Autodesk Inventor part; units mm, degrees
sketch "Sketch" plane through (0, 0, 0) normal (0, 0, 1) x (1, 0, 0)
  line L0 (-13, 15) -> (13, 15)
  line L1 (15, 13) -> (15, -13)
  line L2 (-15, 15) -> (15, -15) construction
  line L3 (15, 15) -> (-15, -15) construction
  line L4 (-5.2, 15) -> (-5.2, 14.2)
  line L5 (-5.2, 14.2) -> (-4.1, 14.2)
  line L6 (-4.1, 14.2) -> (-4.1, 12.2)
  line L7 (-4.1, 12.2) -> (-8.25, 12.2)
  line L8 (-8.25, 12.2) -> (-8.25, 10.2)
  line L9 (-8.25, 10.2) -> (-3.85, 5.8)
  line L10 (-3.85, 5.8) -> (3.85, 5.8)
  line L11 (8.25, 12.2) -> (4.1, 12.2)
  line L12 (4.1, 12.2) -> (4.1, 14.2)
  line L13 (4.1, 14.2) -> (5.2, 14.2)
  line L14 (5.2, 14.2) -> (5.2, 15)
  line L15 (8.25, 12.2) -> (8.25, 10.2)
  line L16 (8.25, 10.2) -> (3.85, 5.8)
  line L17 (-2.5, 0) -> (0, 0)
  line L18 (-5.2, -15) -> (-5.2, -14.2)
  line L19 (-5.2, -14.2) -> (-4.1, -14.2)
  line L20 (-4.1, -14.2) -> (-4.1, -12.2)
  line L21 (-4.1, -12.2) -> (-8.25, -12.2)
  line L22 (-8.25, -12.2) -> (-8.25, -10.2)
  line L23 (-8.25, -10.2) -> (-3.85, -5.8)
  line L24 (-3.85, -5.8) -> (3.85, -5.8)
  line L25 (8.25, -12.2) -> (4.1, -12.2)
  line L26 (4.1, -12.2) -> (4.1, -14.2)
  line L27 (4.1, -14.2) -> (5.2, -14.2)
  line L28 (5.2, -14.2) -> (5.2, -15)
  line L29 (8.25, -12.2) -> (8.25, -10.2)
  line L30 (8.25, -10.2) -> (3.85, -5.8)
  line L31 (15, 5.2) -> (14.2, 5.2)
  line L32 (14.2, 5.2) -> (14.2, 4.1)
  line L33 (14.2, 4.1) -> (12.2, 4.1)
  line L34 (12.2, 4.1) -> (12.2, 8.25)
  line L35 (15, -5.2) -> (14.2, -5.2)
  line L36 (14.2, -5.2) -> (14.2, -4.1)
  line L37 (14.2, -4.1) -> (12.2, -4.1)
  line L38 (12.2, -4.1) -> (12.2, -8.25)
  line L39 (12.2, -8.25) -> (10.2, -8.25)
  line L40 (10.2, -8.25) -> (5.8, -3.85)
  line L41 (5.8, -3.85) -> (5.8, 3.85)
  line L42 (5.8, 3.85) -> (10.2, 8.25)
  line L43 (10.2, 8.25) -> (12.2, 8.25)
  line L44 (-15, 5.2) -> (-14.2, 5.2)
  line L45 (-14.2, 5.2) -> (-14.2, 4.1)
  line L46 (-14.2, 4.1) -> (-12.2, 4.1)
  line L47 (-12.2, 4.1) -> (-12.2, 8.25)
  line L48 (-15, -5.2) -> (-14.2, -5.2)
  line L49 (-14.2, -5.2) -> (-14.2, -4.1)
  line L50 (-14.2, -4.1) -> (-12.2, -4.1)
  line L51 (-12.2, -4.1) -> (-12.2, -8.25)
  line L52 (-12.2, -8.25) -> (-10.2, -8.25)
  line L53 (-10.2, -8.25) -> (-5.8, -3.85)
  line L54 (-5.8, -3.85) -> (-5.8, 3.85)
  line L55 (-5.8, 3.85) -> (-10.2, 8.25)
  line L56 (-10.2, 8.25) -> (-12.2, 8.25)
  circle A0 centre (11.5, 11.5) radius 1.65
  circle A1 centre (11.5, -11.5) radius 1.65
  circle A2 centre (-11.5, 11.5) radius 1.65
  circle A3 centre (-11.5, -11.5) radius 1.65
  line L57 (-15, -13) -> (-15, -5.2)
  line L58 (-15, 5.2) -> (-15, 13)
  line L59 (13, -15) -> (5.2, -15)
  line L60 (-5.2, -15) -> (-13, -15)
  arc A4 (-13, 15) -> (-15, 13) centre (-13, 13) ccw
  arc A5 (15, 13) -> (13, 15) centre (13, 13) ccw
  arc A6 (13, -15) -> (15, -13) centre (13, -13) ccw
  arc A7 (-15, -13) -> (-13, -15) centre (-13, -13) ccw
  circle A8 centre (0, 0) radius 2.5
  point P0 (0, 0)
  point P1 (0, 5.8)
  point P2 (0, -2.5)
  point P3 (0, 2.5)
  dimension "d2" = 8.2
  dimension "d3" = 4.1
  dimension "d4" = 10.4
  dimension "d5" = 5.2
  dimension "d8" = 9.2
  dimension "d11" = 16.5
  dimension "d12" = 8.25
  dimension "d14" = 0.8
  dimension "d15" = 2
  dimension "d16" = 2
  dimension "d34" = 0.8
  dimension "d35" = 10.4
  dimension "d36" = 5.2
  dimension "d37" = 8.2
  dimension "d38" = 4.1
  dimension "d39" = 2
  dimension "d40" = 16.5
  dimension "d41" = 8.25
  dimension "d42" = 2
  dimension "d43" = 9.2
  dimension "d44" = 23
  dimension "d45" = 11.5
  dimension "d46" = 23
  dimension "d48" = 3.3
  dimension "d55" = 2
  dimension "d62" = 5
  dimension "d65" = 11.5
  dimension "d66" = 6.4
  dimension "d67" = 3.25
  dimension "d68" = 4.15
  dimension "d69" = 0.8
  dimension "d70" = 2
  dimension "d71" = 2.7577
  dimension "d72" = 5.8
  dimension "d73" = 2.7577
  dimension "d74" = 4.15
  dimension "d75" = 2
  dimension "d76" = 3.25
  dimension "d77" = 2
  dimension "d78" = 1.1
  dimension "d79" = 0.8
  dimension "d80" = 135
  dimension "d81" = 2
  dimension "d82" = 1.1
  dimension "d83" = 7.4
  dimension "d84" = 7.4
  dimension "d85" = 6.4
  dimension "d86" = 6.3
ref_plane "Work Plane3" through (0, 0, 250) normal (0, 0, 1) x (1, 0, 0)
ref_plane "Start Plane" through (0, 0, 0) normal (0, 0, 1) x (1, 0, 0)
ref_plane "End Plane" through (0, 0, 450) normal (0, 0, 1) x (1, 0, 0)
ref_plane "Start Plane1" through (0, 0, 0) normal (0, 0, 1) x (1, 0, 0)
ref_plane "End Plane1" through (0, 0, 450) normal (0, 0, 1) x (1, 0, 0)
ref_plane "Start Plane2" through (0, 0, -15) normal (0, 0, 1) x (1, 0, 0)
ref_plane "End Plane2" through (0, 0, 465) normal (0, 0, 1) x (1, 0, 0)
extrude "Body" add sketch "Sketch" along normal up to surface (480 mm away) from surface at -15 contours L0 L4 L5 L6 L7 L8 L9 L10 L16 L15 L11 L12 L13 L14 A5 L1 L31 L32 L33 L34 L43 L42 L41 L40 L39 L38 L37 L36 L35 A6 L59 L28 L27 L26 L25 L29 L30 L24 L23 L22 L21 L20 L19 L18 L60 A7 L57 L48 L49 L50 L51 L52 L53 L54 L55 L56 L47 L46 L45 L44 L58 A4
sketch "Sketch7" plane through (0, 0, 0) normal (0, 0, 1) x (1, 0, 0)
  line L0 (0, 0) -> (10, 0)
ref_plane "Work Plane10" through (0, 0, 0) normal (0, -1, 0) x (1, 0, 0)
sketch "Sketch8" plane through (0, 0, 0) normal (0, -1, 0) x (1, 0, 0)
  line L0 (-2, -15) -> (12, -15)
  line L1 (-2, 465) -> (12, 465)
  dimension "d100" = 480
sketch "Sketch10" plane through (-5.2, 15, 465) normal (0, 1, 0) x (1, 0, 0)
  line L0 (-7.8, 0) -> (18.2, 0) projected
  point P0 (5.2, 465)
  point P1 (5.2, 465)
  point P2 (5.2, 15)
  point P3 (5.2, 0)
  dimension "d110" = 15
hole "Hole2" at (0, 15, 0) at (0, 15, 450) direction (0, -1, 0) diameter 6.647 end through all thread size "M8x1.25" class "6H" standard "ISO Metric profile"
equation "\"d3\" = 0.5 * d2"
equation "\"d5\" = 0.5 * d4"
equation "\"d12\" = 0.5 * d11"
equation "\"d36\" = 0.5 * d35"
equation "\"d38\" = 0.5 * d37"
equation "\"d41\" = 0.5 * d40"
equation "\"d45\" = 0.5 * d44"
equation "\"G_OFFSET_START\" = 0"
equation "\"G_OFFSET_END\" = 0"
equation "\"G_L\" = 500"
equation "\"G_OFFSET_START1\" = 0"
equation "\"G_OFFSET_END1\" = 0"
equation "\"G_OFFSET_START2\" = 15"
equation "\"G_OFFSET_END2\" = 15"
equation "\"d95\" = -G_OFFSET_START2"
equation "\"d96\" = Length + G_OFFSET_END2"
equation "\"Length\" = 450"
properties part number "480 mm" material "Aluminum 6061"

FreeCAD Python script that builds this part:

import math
import FreeCAD as App
import Part
import Sketcher

V = App.Vector

doc = App.newDocument("Part")
body = doc.addObject("PartDesign::Body", "Body")

sketch1 = body.newObject("Sketcher::SketchObject", "Sketch")
sketch1.AttachmentSupport = (doc.getObject("XY_Plane"), [""])
sketch1.MapMode = "FlatFace"
sketch1.AttachmentOffset = App.Placement(V(0, 0, -15), App.Rotation())
sketch1.addGeometry(Part.LineSegment(V(-5.2, 15, 0), V(-13, 15, 0)), False)
sketch1.addGeometry(Part.ArcOfCircle(Part.Circle(V(-13, 13, 0), V(0, 0, 1), 2), math.radians(90), math.radians(180)), False)
sketch1.addGeometry(Part.LineSegment(V(-15, 13, 0), V(-15, 5.2, 0)), False)
sketch1.addGeometry(Part.LineSegment(V(-15, 5.2, 0), V(-14.2, 5.2, 0)), False)
sketch1.addGeometry(Part.LineSegment(V(-14.2, 5.2, 0), V(-14.2, 4.1, 0)), False)
sketch1.addGeometry(Part.LineSegment(V(-14.2, 4.1, 0), V(-12.2, 4.1, 0)), False)
sketch1.addGeometry(Part.LineSegment(V(-12.2, 4.1, 0), V(-12.2, 8.25, 0)), False)
sketch1.addGeometry(Part.LineSegment(V(-12.2, 8.25, 0), V(-10.2, 8.25, 0)), False)
sketch1.addGeometry(Part.LineSegment(V(-10.2, 8.25, 0), V(-5.8, 3.85, 0)), False)
sketch1.addGeometry(Part.LineSegment(V(-5.8, 3.85, 0), V(-5.8, -3.85, 0)), False)
sketch1.addGeometry(Part.LineSegment(V(-5.8, -3.85, 0), V(-10.2, -8.25, 0)), False)
sketch1.addGeometry(Part.LineSegment(V(-10.2, -8.25, 0), V(-12.2, -8.25, 0)), False)
sketch1.addGeometry(Part.LineSegment(V(-12.2, -8.25, 0), V(-12.2, -4.1, 0)), False)
sketch1.addGeometry(Part.LineSegment(V(-12.2, -4.1, 0), V(-14.2, -4.1, 0)), False)
sketch1.addGeometry(Part.LineSegment(V(-14.2, -4.1, 0), V(-14.2, -5.2, 0)), False)
sketch1.addGeometry(Part.LineSegment(V(-14.2, -5.2, 0), V(-15, -5.2, 0)), False)
sketch1.addGeometry(Part.LineSegment(V(-15, -5.2, 0), V(-15, -13, 0)), False)
sketch1.addGeometry(Part.ArcOfCircle(Part.Circle(V(-13, -13, 0), V(0, 0, 1), 2), math.radians(180), math.radians(270)), False)
sketch1.addGeometry(Part.LineSegment(V(-13, -15, 0), V(-5.2, -15, 0)), False)
sketch1.addGeometry(Part.LineSegment(V(-5.2, -15, 0), V(-5.2, -14.2, 0)), False)
sketch1.addGeometry(Part.LineSegment(V(-5.2, -14.2, 0), V(-4.1, -14.2, 0)), False)
sketch1.addGeometry(Part.LineSegment(V(-4.1, -14.2, 0), V(-4.1, -12.2, 0)), False)
sketch1.addGeometry(Part.LineSegment(V(-4.1, -12.2, 0), V(-8.25, -12.2, 0)), False)
sketch1.addGeometry(Part.LineSegment(V(-8.25, -12.2, 0), V(-8.25, -10.2, 0)), False)
sketch1.addGeometry(Part.LineSegment(V(-8.25, -10.2, 0), V(-3.85, -5.8, 0)), False)
sketch1.addGeometry(Part.LineSegment(V(-3.85, -5.8, 0), V(3.85, -5.8, 0)), False)
sketch1.addGeometry(Part.LineSegment(V(3.85, -5.8, 0), V(8.25, -10.2, 0)), False)
sketch1.addGeometry(Part.LineSegment(V(8.25, -10.2, 0), V(8.25, -12.2, 0)), False)
sketch1.addGeometry(Part.LineSegment(V(8.25, -12.2, 0), V(4.1, -12.2, 0)), False)
sketch1.addGeometry(Part.LineSegment(V(4.1, -12.2, 0), V(4.1, -14.2, 0)), False)
sketch1.addGeometry(Part.LineSegment(V(4.1, -14.2, 0), V(5.2, -14.2, 0)), False)
sketch1.addGeometry(Part.LineSegment(V(5.2, -14.2, 0), V(5.2, -15, 0)), False)
sketch1.addGeometry(Part.LineSegment(V(5.2, -15, 0), V(13, -15, 0)), False)
sketch1.addGeometry(Part.ArcOfCircle(Part.Circle(V(13, -13, 0), V(0, 0, 1), 2), math.radians(-90), math.radians(0)), False)
sketch1.addGeometry(Part.LineSegment(V(15, -13, 0), V(15, -5.2, 0)), False)
sketch1.addGeometry(Part.LineSegment(V(15, -5.2, 0), V(14.2, -5.2, 0)), False)
sketch1.addGeometry(Part.LineSegment(V(14.2, -5.2, 0), V(14.2, -4.1, 0)), False)
sketch1.addGeometry(Part.LineSegment(V(14.2, -4.1, 0), V(12.2, -4.1, 0)), False)
sketch1.addGeometry(Part.LineSegment(V(12.2, -4.1, 0), V(12.2, -8.25, 0)), False)
sketch1.addGeometry(Part.LineSegment(V(12.2, -8.25, 0), V(10.2, -8.25, 0)), False)
sketch1.addGeometry(Part.LineSegment(V(10.2, -8.25, 0), V(5.8, -3.85, 0)), False)
sketch1.addGeometry(Part.LineSegment(V(5.8, -3.85, 0), V(5.8, 3.85, 0)), False)
sketch1.addGeometry(Part.LineSegment(V(5.8, 3.85, 0), V(10.2, 8.25, 0)), False)
sketch1.addGeometry(Part.LineSegment(V(10.2, 8.25, 0), V(12.2, 8.25, 0)), False)
sketch1.addGeometry(Part.LineSegment(V(12.2, 8.25, 0), V(12.2, 4.1, 0)), False)
sketch1.addGeometry(Part.LineSegment(V(12.2, 4.1, 0), V(14.2, 4.1, 0)), False)
sketch1.addGeometry(Part.LineSegment(V(14.2, 4.1, 0), V(14.2, 5.2, 0)), False)
sketch1.addGeometry(Part.LineSegment(V(14.2, 5.2, 0), V(15, 5.2, 0)), False)
sketch1.addGeometry(Part.LineSegment(V(15, 5.2, 0), V(15, 13, 0)), False)
sketch1.addGeometry(Part.ArcOfCircle(Part.Circle(V(13, 13, 0), V(0, 0, 1), 2), math.radians(0), math.radians(90)), False)
sketch1.addGeometry(Part.LineSegment(V(13, 15, 0), V(5.2, 15, 0)), False)
sketch1.addGeometry(Part.LineSegment(V(5.2, 15, 0), V(5.2, 14.2, 0)), False)
sketch1.addGeometry(Part.LineSegment(V(5.2, 14.2, 0), V(4.1, 14.2, 0)), False)
sketch1.addGeometry(Part.LineSegment(V(4.1, 14.2, 0), V(4.1, 12.2, 0)), False)
sketch1.addGeometry(Part.LineSegment(V(4.1, 12.2, 0), V(8.25, 12.2, 0)), False)
sketch1.addGeometry(Part.LineSegment(V(8.25, 12.2, 0), V(8.25, 10.2, 0)), False)
sketch1.addGeometry(Part.LineSegment(V(8.25, 10.2, 0), V(3.85, 5.8, 0)), False)
sketch1.addGeometry(Part.LineSegment(V(3.85, 5.8, 0), V(-3.85, 5.8, 0)), False)
sketch1.addGeometry(Part.LineSegment(V(-3.85, 5.8, 0), V(-8.25, 10.2, 0)), False)
sketch1.addGeometry(Part.LineSegment(V(-8.25, 10.2, 0), V(-8.25, 12.2, 0)), False)
sketch1.addGeometry(Part.LineSegment(V(-8.25, 12.2, 0), V(-4.1, 12.2, 0)), False)
sketch1.addGeometry(Part.LineSegment(V(-4.1, 12.2, 0), V(-4.1, 14.2, 0)), False)
sketch1.addGeometry(Part.LineSegment(V(-4.1, 14.2, 0), V(-5.2, 14.2, 0)), False)
sketch1.addGeometry(Part.LineSegment(V(-5.2, 14.2, 0), V(-5.2, 15, 0)), False)
sketch1.addGeometry(Part.Circle(V(-11.5, -11.5, 0), V(0, 0, 1), 1.65), False)
sketch1.addGeometry(Part.Circle(V(11.5, -11.5, 0), V(0, 0, 1), 1.65), False)
sketch1.addGeometry(Part.Circle(V(-11.5, 11.5, 0), V(0, 0, 1), 1.65), False)
sketch1.addGeometry(Part.Circle(V(0, 0, 0), V(0, 0, 1), 2.5), False)
sketch1.addGeometry(Part.Circle(V(11.5, 11.5, 0), V(0, 0, 1), 1.65), False)
sketch1.addConstraint(Sketcher.Constraint("Tangent", 0, 2, 1, 1))
sketch1.addConstraint(Sketcher.Constraint("Tangent", 1, 2, 2, 1))
sketch1.addConstraint(Sketcher.Constraint("Coincident", 2, 2, 3, 1))
sketch1.addConstraint(Sketcher.Constraint("Coincident", 3, 2, 4, 1))
sketch1.addConstraint(Sketcher.Constraint("Coincident", 4, 2, 5, 1))
sketch1.addConstraint(Sketcher.Constraint("Coincident", 5, 2, 6, 1))
sketch1.addConstraint(Sketcher.Constraint("Coincident", 6, 2, 7, 1))
sketch1.addConstraint(Sketcher.Constraint("Coincident", 7, 2, 8, 1))
sketch1.addConstraint(Sketcher.Constraint("Coincident", 8, 2, 9, 1))
sketch1.addConstraint(Sketcher.Constraint("Coincident", 9, 2, 10, 1))
sketch1.addConstraint(Sketcher.Constraint("Coincident", 10, 2, 11, 1))
sketch1.addConstraint(Sketcher.Constraint("Coincident", 11, 2, 12, 1))
sketch1.addConstraint(Sketcher.Constraint("Coincident", 12, 2, 13, 1))
sketch1.addConstraint(Sketcher.Constraint("Coincident", 13, 2, 14, 1))
sketch1.addConstraint(Sketcher.Constraint("Coincident", 14, 2, 15, 1))
sketch1.addConstraint(Sketcher.Constraint("Coincident", 15, 2, 16, 1))
sketch1.addConstraint(Sketcher.Constraint("Tangent", 16, 2, 17, 1))
sketch1.addConstraint(Sketcher.Constraint("Tangent", 17, 2, 18, 1))
sketch1.addConstraint(Sketcher.Constraint("Coincident", 18, 2, 19, 1))
sketch1.addConstraint(Sketcher.Constraint("Coincident", 19, 2, 20, 1))
sketch1.addConstraint(Sketcher.Constraint("Coincident", 20, 2, 21, 1))
sketch1.addConstraint(Sketcher.Constraint("Coincident", 21, 2, 22, 1))
sketch1.addConstraint(Sketcher.Constraint("Coincident", 22, 2, 23, 1))
sketch1.addConstraint(Sketcher.Constraint("Coincident", 23, 2, 24, 1))
sketch1.addConstraint(Sketcher.Constraint("Coincident", 24, 2, 25, 1))
sketch1.addConstraint(Sketcher.Constraint("Coincident", 25, 2, 26, 1))
sketch1.addConstraint(Sketcher.Constraint("Coincident", 26, 2, 27, 1))
sketch1.addConstraint(Sketcher.Constraint("Coincident", 27, 2, 28, 1))
sketch1.addConstraint(Sketcher.Constraint("Coincident", 28, 2, 29, 1))
sketch1.addConstraint(Sketcher.Constraint("Coincident", 29, 2, 30, 1))
sketch1.addConstraint(Sketcher.Constraint("Coincident", 30, 2, 31, 1))
sketch1.addConstraint(Sketcher.Constraint("Coincident", 31, 2, 32, 1))
sketch1.addConstraint(Sketcher.Constraint("Tangent", 32, 2, 33, 1))
sketch1.addConstraint(Sketcher.Constraint("Tangent", 33, 2, 34, 1))
sketch1.addConstraint(Sketcher.Constraint("Coincident", 34, 2, 35, 1))
sketch1.addConstraint(Sketcher.Constraint("Coincident", 35, 2, 36, 1))
sketch1.addConstraint(Sketcher.Constraint("Coincident", 36, 2, 37, 1))
sketch1.addConstraint(Sketcher.Constraint("Coincident", 37, 2, 38, 1))
sketch1.addConstraint(Sketcher.Constraint("Coincident", 38, 2, 39, 1))
sketch1.addConstraint(Sketcher.Constraint("Coincident", 39, 2, 40, 1))
sketch1.addConstraint(Sketcher.Constraint("Coincident", 40, 2, 41, 1))
sketch1.addConstraint(Sketcher.Constraint("Coincident", 41, 2, 42, 1))
sketch1.addConstraint(Sketcher.Constraint("Coincident", 42, 2, 43, 1))
sketch1.addConstraint(Sketcher.Constraint("Coincident", 43, 2, 44, 1))
sketch1.addConstraint(Sketcher.Constraint("Coincident", 44, 2, 45, 1))
sketch1.addConstraint(Sketcher.Constraint("Coincident", 45, 2, 46, 1))
sketch1.addConstraint(Sketcher.Constraint("Coincident", 46, 2, 47, 1))
sketch1.addConstraint(Sketcher.Constraint("Coincident", 47, 2, 48, 1))
sketch1.addConstraint(Sketcher.Constraint("Tangent", 48, 2, 49, 1))
sketch1.addConstraint(Sketcher.Constraint("Tangent", 49, 2, 50, 1))
sketch1.addConstraint(Sketcher.Constraint("Coincident", 50, 2, 51, 1))
sketch1.addConstraint(Sketcher.Constraint("Coincident", 51, 2, 52, 1))
sketch1.addConstraint(Sketcher.Constraint("Coincident", 52, 2, 53, 1))
sketch1.addConstraint(Sketcher.Constraint("Coincident", 53, 2, 54, 1))
sketch1.addConstraint(Sketcher.Constraint("Coincident", 54, 2, 55, 1))
sketch1.addConstraint(Sketcher.Constraint("Coincident", 55, 2, 56, 1))
sketch1.addConstraint(Sketcher.Constraint("Coincident", 56, 2, 57, 1))
sketch1.addConstraint(Sketcher.Constraint("Coincident", 57, 2, 58, 1))
sketch1.addConstraint(Sketcher.Constraint("Coincident", 58, 2, 59, 1))
sketch1.addConstraint(Sketcher.Constraint("Coincident", 59, 2, 60, 1))
sketch1.addConstraint(Sketcher.Constraint("Coincident", 60, 2, 61, 1))
sketch1.addConstraint(Sketcher.Constraint("Coincident", 61, 2, 62, 1))
sketch1.addConstraint(Sketcher.Constraint("Coincident", 62, 2, 63, 1))
sketch1.addConstraint(Sketcher.Constraint("Coincident", 63, 2, 0, 1))
sketch1.addConstraint(Sketcher.Constraint("Horizontal", 0))
sketch1.addConstraint(Sketcher.Constraint("Vertical", 2))
sketch1.addConstraint(Sketcher.Constraint("Horizontal", 3))
sketch1.addConstraint(Sketcher.Constraint("Vertical", 4))
sketch1.addConstraint(Sketcher.Constraint("Horizontal", 5))
sketch1.addConstraint(Sketcher.Constraint("Vertical", 6))
sketch1.addConstraint(Sketcher.Constraint("Horizontal", 7))
sketch1.addConstraint(Sketcher.Constraint("Vertical", 9))
sketch1.addConstraint(Sketcher.Constraint("Horizontal", 11))
sketch1.addConstraint(Sketcher.Constraint("Vertical", 12))
sketch1.addConstraint(Sketcher.Constraint("Horizontal", 13))
sketch1.addConstraint(Sketcher.Constraint("Vertical", 14))
sketch1.addConstraint(Sketcher.Constraint("Horizontal", 15))
sketch1.addConstraint(Sketcher.Constraint("Vertical", 16))
sketch1.addConstraint(Sketcher.Constraint("Horizontal", 18))
sketch1.addConstraint(Sketcher.Constraint("Vertical", 19))
sketch1.addConstraint(Sketcher.Constraint("Horizontal", 20))
sketch1.addConstraint(Sketcher.Constraint("Vertical", 21))
sketch1.addConstraint(Sketcher.Constraint("Horizontal", 22))
sketch1.addConstraint(Sketcher.Constraint("Vertical", 23))
sketch1.addConstraint(Sketcher.Constraint("Horizontal", 25))
sketch1.addConstraint(Sketcher.Constraint("Vertical", 27))
sketch1.addConstraint(Sketcher.Constraint("Horizontal", 28))
sketch1.addConstraint(Sketcher.Constraint("Vertical", 29))
sketch1.addConstraint(Sketcher.Constraint("Horizontal", 30))
sketch1.addConstraint(Sketcher.Constraint("Vertical", 31))
sketch1.addConstraint(Sketcher.Constraint("Horizontal", 32))
sketch1.addConstraint(Sketcher.Constraint("Vertical", 34))
sketch1.addConstraint(Sketcher.Constraint("Horizontal", 35))
sketch1.addConstraint(Sketcher.Constraint("Vertical", 36))
sketch1.addConstraint(Sketcher.Constraint("Horizontal", 37))
sketch1.addConstraint(Sketcher.Constraint("Vertical", 38))
sketch1.addConstraint(Sketcher.Constraint("Horizontal", 39))
sketch1.addConstraint(Sketcher.Constraint("Vertical", 41))
sketch1.addConstraint(Sketcher.Constraint("Horizontal", 43))
sketch1.addConstraint(Sketcher.Constraint("Vertical", 44))
sketch1.addConstraint(Sketcher.Constraint("Horizontal", 45))
sketch1.addConstraint(Sketcher.Constraint("Vertical", 46))
sketch1.addConstraint(Sketcher.Constraint("Horizontal", 47))
sketch1.addConstraint(Sketcher.Constraint("Vertical", 48))
sketch1.addConstraint(Sketcher.Constraint("Horizontal", 50))
sketch1.addConstraint(Sketcher.Constraint("Vertical", 51))
sketch1.addConstraint(Sketcher.Constraint("Horizontal", 52))
sketch1.addConstraint(Sketcher.Constraint("Vertical", 53))
sketch1.addConstraint(Sketcher.Constraint("Horizontal", 54))
sketch1.addConstraint(Sketcher.Constraint("Vertical", 55))
sketch1.addConstraint(Sketcher.Constraint("Horizontal", 57))
sketch1.addConstraint(Sketcher.Constraint("Vertical", 59))
sketch1.addConstraint(Sketcher.Constraint("Horizontal", 60))
sketch1.addConstraint(Sketcher.Constraint("Vertical", 61))
sketch1.addConstraint(Sketcher.Constraint("Horizontal", 62))
sketch1.addConstraint(Sketcher.Constraint("Vertical", 63))
sketch1.addConstraint(Sketcher.Constraint("Coincident", 67, 3, -1, 1))
sketch1.addConstraint(Sketcher.Constraint("Equal", 1, 17))
sketch1.addConstraint(Sketcher.Constraint("Equal", 17, 33))
sketch1.addConstraint(Sketcher.Constraint("Equal", 33, 49))
sketch1.addConstraint(Sketcher.Constraint("Equal", 64, 65))
sketch1.addConstraint(Sketcher.Constraint("Equal", 65, 66))
sketch1.addConstraint(Sketcher.Constraint("Equal", 66, 68))
sketch1.addConstraint(Sketcher.Constraint("Symmetric", 1, 3, 33, 3, -1, 1))
sketch1.addConstraint(Sketcher.Constraint("Symmetric", 17, 3, 49, 3, -1, 1))
sketch1.addConstraint(Sketcher.Constraint("Symmetric", 65, 3, 66, 3, -1, 1))
sketch1.addConstraint(Sketcher.Constraint("Symmetric", 64, 3, 68, 3, -1, 1))
sketch1.addConstraint(Sketcher.Constraint("Symmetric", 3, 2, 35, 2, -1, 1))
sketch1.addConstraint(Sketcher.Constraint("Symmetric", 5, 2, 37, 2, -1, 1))
sketch1.addConstraint(Sketcher.Constraint("Symmetric", 7, 2, 39, 2, -1, 1))
sketch1.addConstraint(Sketcher.Constraint("Symmetric", 8, 2, 40, 2, -1, 1))
sketch1.addConstraint(Sketcher.Constraint("Symmetric", 10, 2, 42, 2, -1, 1))
sketch1.addConstraint(Sketcher.Constraint("Symmetric", 12, 2, 44, 2, -1, 1))
sketch1.addConstraint(Sketcher.Constraint("Symmetric", 14, 2, 46, 2, -1, 1))
sketch1.addConstraint(Sketcher.Constraint("Symmetric", 19, 2, 51, 2, -1, 1))
sketch1.addConstraint(Sketcher.Constraint("Symmetric", 21, 2, 53, 2, -1, 1))
sketch1.addConstraint(Sketcher.Constraint("Symmetric", 23, 2, 55, 2, -1, 1))
sketch1.addConstraint(Sketcher.Constraint("Symmetric", 24, 2, 56, 2, -1, 1))
sketch1.addConstraint(Sketcher.Constraint("Symmetric", 26, 2, 58, 2, -1, 1))
sketch1.addConstraint(Sketcher.Constraint("Symmetric", 28, 2, 60, 2, -1, 1))
sketch1.addConstraint(Sketcher.Constraint("Symmetric", 30, 2, 62, 2, -1, 1))
sketch1.addConstraint(Sketcher.Constraint("Symmetric", 17, 3, 33, 3, -2))
sketch1.addConstraint(Sketcher.Constraint("Symmetric", 64, 3, 65, 3, -2))
sketch1.addConstraint(Sketcher.Constraint("Symmetric", 23, 2, 26, 2, -2))
sketch1.addConstraint(Sketcher.Constraint("Symmetric", 21, 2, 28, 2, -2))
sketch1.addConstraint(Sketcher.Constraint("Symmetric", 19, 2, 30, 2, -2))
sketch1.addConstraint(Sketcher.Constraint("Symmetric", 14, 2, 35, 2, -2))
sketch1.addConstraint(Sketcher.Constraint("Symmetric", 12, 2, 37, 2, -2))
sketch1.addConstraint(Sketcher.Constraint("Symmetric", 10, 2, 39, 2, -2))
sketch1.addConstraint(Sketcher.Constraint("Perpendicular", 8, 10))
sketch1.addConstraint(Sketcher.Constraint("Parallel", 10, 24))
sketch1.addConstraint(Sketcher.Constraint("Perpendicular", 24, 26))
sketch1.addConstraint(Sketcher.Constraint("Perpendicular", 40, 42))
sketch1.addConstraint(Sketcher.Constraint("Perpendicular", 56, 58))
sketch1.addConstraint(Sketcher.Constraint("Horizontal", 9, 2, 40, 2))
sketch1.addConstraint(Sketcher.Constraint("Equal", 5, 7))
sketch1.addConstraint(Sketcher.Constraint("Equal", 50, 2))
sketch1.addConstraint(Sketcher.Constraint("Equal", 62, 4))
sketch1.addConstraint(Sketcher.Constraint("Equal", 60, 6))
sketch1.addConstraint(Sketcher.Constraint("Equal", 57, 9))
sketch1.addConstraint(Sketcher.Constraint("Equal", 47, 19))
sketch1.addConstraint(Sketcher.Constraint("Equal", 45, 21))
sketch1.addConstraint(Sketcher.Constraint("Equal", 21, 23))
sketch1.addConstraint(Sketcher.Constraint("Equal", 10, 24))
sketch1.addConstraint(Sketcher.Constraint("Diameter", 67, 5.0))
sketch1.addConstraint(Sketcher.Constraint("Radius", 1, 2.0))
sketch1.addConstraint(Sketcher.Constraint("Diameter", 64, 3.3))
sketch1.addConstraint(Sketcher.Constraint("DistanceX", 5, 1, 5, 2, 2.0))
sketch1.addConstraint(Sketcher.Constraint("DistanceX", 3, 1, 3, 2, 0.8))
sketch1.addConstraint(Sketcher.Constraint("DistanceX", 20, 1, 20, 2, 1.1))
sketch1.addConstraint(Sketcher.Constraint("DistanceX", 22, 2, 22, 1, 4.15))
sketch1.addConstraint(Sketcher.Constraint("DistanceX", 64, 3, -1, 1, 11.5))
sketch1.addConstraint(Sketcher.Constraint("DistanceY", 64, 3, -1, 1, 11.5))
sketch1.addConstraint(Sketcher.Constraint("DistanceY", -1, 1, 2, 2, 5.2))
sketch1.addConstraint(Sketcher.Constraint("DistanceX", 8, 2, -1, 1, 5.8))
sketch1.addConstraint(Sketcher.Constraint("DistanceX", 0, 2, 0, 1, 7.8))
pad1 = body.newObject("PartDesign::Pad", "Pad")
pad1.Profile = sketch1
pad1.Length = 480

sketch2 = body.newObject("Sketcher::SketchObject", "Sketch001")
sketch2.AttachmentSupport = (doc.getObject("XZ_Plane"), [""])
sketch2.MapMode = "FlatFace"
sketch2.AttachmentOffset = App.Placement(V(0, 0, -15), App.Rotation())
sketch2.addGeometry(Part.Circle(V(0, 0, 0), V(0, 0, 1), 3.3235), False)
sketch2.addGeometry(Part.Circle(V(0, 450, 0), V(0, 0, 1), 3.3235), False)
sketch2.addConstraint(Sketcher.Constraint("Coincident", 0, 3, -1, 1))
sketch2.addConstraint(Sketcher.Constraint("Equal", 0, 1))
sketch2.addConstraint(Sketcher.Constraint("PointOnObject", 1, 3, -2))
sketch2.addConstraint(Sketcher.Constraint("Diameter", 0, 6.647))
sketch2.addConstraint(Sketcher.Constraint("DistanceY", -1, 1, 1, 3, 450.0))
doc.recompute()
hole = body.newObject("PartDesign::Hole", "Hole")
hole.Profile = sketch2
hole.ThreadType = "None"
hole.Diameter = 6.647
hole.DepthType = "ThroughAll"
hole.Reversed = True

doc.recompute()
